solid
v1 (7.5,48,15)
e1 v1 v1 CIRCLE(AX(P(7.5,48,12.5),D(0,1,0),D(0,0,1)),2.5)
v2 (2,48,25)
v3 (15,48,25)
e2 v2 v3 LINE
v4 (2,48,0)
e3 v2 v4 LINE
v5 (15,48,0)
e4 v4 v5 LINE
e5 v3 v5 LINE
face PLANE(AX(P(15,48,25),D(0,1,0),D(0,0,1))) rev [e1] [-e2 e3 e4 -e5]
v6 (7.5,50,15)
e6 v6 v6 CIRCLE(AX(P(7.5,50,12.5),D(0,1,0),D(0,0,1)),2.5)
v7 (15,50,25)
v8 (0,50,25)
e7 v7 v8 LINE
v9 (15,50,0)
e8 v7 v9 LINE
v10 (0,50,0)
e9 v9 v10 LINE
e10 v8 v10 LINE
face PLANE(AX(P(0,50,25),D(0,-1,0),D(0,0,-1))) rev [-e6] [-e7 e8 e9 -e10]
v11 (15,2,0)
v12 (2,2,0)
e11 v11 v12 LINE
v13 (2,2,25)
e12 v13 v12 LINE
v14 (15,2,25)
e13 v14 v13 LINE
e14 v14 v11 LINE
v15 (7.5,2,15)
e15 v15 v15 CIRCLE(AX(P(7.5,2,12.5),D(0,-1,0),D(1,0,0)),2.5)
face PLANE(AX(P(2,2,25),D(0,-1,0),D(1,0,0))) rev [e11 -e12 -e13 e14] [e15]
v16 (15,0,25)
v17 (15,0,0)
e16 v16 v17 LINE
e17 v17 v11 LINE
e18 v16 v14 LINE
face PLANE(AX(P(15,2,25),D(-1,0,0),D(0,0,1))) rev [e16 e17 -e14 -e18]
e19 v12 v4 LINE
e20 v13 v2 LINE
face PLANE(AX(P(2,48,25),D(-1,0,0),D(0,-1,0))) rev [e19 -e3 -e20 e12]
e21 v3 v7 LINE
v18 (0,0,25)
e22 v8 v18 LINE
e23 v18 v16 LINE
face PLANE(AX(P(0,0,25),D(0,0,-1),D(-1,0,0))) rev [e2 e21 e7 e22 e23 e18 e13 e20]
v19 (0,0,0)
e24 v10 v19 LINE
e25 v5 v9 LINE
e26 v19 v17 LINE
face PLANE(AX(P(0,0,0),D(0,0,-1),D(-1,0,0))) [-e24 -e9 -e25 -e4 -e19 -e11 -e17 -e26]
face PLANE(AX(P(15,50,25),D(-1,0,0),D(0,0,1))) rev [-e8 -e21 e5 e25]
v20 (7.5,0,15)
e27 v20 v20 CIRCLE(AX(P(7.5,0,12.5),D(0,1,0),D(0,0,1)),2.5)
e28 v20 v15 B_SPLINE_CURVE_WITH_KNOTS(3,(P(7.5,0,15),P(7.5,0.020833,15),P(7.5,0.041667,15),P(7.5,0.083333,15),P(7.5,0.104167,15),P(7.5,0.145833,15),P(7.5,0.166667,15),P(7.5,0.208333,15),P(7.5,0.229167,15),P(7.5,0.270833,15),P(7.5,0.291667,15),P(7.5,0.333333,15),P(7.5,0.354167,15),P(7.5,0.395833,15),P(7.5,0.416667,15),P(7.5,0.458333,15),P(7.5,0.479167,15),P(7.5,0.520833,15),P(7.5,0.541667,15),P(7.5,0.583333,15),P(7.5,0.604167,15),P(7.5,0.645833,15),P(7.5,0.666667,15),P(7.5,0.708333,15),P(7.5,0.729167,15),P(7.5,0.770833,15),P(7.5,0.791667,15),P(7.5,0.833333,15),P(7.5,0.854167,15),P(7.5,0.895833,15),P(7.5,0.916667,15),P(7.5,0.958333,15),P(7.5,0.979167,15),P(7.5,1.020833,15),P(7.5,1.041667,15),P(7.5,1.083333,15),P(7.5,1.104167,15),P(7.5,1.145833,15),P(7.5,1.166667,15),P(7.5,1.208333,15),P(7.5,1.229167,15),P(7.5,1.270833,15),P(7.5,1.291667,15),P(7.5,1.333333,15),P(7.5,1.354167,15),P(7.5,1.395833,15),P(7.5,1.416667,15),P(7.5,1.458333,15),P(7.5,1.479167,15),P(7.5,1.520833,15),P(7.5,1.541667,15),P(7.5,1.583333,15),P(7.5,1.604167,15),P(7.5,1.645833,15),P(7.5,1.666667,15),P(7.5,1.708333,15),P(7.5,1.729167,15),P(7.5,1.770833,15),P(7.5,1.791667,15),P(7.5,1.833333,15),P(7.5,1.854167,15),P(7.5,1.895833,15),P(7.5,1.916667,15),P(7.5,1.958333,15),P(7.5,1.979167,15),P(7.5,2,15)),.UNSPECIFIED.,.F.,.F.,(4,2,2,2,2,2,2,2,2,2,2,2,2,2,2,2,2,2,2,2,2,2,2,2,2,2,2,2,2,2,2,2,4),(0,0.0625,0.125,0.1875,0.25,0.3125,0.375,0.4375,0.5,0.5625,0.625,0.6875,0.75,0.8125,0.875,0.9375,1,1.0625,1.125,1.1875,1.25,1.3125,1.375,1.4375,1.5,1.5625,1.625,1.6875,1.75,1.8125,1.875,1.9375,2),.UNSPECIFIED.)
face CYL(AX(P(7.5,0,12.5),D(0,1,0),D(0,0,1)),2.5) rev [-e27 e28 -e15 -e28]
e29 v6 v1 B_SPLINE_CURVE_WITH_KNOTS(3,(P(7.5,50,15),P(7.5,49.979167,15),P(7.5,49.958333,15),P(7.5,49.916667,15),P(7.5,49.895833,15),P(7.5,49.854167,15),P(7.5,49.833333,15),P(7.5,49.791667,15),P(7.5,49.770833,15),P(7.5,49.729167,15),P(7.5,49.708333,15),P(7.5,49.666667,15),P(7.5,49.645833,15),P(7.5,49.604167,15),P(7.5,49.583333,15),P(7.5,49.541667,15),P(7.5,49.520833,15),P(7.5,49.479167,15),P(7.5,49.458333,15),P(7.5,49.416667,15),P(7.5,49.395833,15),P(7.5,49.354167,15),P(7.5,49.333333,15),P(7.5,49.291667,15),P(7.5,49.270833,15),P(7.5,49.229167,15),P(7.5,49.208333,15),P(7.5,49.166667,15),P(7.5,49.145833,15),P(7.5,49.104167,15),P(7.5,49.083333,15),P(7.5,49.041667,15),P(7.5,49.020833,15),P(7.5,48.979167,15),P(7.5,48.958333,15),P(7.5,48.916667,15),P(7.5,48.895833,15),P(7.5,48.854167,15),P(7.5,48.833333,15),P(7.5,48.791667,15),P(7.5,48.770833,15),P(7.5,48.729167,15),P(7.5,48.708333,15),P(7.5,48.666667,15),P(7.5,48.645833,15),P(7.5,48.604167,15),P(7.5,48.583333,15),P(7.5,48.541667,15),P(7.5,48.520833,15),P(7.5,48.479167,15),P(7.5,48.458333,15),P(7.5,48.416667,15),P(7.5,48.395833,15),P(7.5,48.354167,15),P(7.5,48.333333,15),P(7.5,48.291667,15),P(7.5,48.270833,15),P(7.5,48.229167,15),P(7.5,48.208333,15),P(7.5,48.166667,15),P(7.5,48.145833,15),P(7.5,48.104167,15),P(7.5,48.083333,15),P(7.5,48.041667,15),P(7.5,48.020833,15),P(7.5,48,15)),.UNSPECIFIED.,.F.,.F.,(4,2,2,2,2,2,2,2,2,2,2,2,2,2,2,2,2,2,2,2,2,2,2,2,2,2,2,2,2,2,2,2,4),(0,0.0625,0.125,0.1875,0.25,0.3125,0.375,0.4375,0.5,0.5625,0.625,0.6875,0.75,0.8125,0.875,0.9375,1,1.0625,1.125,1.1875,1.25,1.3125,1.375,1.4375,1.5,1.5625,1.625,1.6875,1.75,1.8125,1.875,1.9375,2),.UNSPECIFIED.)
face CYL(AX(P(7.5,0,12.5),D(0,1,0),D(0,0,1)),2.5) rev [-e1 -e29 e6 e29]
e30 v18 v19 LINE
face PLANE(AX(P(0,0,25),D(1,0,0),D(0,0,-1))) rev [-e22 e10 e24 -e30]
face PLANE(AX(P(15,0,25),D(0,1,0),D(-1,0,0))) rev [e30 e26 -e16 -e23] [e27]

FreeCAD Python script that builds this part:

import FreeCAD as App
import Part
import Sketcher
Q = App.Units.Quantity


def add_polygon(sketch, points):
    """Adds a closed chain of lines whose ends are joined by coincident constraints."""
    first, n = sketch.GeometryCount, len(points)
    for a, b in zip(points, points[1:] + points[:1]):
        sketch.addGeometry(Part.LineSegment(App.Vector(*a, 0), App.Vector(*b, 0)), False)
    for i in range(n):
        sketch.addConstraint(Sketcher.Constraint("Coincident", first + i, 2, first + (i + 1) % n, 1))

doc = App.newDocument("Part")
body = doc.addObject("PartDesign::Body", "Body")

sketch1 = doc.addObject("Sketcher::SketchObject", "Sketch")
body.addObject(sketch1)
sketch1.AttachmentSupport = (doc.XY_Plane, [""])
sketch1.MapMode = "FlatFace"
add_polygon(sketch1, [(0, 0), (15, 0), (15, 2), (2, 2), (2, 48), (15, 48), (15, 50), (0, 50)])
sketch1.addConstraint(Sketcher.Constraint("Horizontal", 0))
sketch1.addConstraint(Sketcher.Constraint("Vertical", 1))
sketch1.addConstraint(Sketcher.Constraint("Horizontal", 2))
sketch1.addConstraint(Sketcher.Constraint("Vertical", 3))
sketch1.addConstraint(Sketcher.Constraint("Horizontal", 4))
sketch1.addConstraint(Sketcher.Constraint("Vertical", 5))
sketch1.addConstraint(Sketcher.Constraint("Horizontal", 6))
sketch1.addConstraint(Sketcher.Constraint("Vertical", 7))
sketch1.addConstraint(Sketcher.Constraint("Coincident", 7, 2, -1, 1))
sketch1.addConstraint(Sketcher.Constraint("Vertical", 1, 2, 4, 2))
sketch1.addConstraint(Sketcher.Constraint("Equal", 1, 5))
sketch1.addConstraint(Sketcher.Constraint("DistanceX", 0, 1, 0, 2, Q("15 mm")))
sketch1.addConstraint(Sketcher.Constraint("DistanceX", 2, 2, 2, 1, Q("13 mm")))
sketch1.addConstraint(Sketcher.Constraint("DistanceY", 1, 1, 1, 2, Q("2 mm")))
sketch1.addConstraint(Sketcher.Constraint("DistanceY", 3, 1, 3, 2, Q("46 mm")))
pad1 = doc.addObject("PartDesign::Pad", "Pad")
body.addObject(pad1)
pad1.Profile = sketch1
pad1.Length = 25

sketch2 = doc.addObject("Sketcher::SketchObject", "Sketch001")
body.addObject(sketch2)
sketch2.AttachmentSupport = (doc.XZ_Plane, [""])
sketch2.MapMode = "FlatFace"
sketch2.AttachmentOffset = App.Placement(App.Vector(0, 0, -50), App.Rotation())
sketch2.addGeometry(Part.Circle(App.Vector(7.5, 12.5, 0), App.Vector(0, 0, 1), 2.5), False)
sketch2.addConstraint(Sketcher.Constraint("Diameter", 0, Q("5 mm")))
sketch2.addConstraint(Sketcher.Constraint("DistanceX", -1, 1, 0, 3, Q("7.5 mm")))
sketch2.addConstraint(Sketcher.Constraint("DistanceY", -1, 1, 0, 3, Q("12.5 mm")))
pocket1 = doc.addObject("PartDesign::Pocket", "Pocket")
body.addObject(pocket1)
pocket1.Profile = sketch2
pocket1.Type = "ThroughAll"
pocket1.Reversed = True

doc.recompute()
